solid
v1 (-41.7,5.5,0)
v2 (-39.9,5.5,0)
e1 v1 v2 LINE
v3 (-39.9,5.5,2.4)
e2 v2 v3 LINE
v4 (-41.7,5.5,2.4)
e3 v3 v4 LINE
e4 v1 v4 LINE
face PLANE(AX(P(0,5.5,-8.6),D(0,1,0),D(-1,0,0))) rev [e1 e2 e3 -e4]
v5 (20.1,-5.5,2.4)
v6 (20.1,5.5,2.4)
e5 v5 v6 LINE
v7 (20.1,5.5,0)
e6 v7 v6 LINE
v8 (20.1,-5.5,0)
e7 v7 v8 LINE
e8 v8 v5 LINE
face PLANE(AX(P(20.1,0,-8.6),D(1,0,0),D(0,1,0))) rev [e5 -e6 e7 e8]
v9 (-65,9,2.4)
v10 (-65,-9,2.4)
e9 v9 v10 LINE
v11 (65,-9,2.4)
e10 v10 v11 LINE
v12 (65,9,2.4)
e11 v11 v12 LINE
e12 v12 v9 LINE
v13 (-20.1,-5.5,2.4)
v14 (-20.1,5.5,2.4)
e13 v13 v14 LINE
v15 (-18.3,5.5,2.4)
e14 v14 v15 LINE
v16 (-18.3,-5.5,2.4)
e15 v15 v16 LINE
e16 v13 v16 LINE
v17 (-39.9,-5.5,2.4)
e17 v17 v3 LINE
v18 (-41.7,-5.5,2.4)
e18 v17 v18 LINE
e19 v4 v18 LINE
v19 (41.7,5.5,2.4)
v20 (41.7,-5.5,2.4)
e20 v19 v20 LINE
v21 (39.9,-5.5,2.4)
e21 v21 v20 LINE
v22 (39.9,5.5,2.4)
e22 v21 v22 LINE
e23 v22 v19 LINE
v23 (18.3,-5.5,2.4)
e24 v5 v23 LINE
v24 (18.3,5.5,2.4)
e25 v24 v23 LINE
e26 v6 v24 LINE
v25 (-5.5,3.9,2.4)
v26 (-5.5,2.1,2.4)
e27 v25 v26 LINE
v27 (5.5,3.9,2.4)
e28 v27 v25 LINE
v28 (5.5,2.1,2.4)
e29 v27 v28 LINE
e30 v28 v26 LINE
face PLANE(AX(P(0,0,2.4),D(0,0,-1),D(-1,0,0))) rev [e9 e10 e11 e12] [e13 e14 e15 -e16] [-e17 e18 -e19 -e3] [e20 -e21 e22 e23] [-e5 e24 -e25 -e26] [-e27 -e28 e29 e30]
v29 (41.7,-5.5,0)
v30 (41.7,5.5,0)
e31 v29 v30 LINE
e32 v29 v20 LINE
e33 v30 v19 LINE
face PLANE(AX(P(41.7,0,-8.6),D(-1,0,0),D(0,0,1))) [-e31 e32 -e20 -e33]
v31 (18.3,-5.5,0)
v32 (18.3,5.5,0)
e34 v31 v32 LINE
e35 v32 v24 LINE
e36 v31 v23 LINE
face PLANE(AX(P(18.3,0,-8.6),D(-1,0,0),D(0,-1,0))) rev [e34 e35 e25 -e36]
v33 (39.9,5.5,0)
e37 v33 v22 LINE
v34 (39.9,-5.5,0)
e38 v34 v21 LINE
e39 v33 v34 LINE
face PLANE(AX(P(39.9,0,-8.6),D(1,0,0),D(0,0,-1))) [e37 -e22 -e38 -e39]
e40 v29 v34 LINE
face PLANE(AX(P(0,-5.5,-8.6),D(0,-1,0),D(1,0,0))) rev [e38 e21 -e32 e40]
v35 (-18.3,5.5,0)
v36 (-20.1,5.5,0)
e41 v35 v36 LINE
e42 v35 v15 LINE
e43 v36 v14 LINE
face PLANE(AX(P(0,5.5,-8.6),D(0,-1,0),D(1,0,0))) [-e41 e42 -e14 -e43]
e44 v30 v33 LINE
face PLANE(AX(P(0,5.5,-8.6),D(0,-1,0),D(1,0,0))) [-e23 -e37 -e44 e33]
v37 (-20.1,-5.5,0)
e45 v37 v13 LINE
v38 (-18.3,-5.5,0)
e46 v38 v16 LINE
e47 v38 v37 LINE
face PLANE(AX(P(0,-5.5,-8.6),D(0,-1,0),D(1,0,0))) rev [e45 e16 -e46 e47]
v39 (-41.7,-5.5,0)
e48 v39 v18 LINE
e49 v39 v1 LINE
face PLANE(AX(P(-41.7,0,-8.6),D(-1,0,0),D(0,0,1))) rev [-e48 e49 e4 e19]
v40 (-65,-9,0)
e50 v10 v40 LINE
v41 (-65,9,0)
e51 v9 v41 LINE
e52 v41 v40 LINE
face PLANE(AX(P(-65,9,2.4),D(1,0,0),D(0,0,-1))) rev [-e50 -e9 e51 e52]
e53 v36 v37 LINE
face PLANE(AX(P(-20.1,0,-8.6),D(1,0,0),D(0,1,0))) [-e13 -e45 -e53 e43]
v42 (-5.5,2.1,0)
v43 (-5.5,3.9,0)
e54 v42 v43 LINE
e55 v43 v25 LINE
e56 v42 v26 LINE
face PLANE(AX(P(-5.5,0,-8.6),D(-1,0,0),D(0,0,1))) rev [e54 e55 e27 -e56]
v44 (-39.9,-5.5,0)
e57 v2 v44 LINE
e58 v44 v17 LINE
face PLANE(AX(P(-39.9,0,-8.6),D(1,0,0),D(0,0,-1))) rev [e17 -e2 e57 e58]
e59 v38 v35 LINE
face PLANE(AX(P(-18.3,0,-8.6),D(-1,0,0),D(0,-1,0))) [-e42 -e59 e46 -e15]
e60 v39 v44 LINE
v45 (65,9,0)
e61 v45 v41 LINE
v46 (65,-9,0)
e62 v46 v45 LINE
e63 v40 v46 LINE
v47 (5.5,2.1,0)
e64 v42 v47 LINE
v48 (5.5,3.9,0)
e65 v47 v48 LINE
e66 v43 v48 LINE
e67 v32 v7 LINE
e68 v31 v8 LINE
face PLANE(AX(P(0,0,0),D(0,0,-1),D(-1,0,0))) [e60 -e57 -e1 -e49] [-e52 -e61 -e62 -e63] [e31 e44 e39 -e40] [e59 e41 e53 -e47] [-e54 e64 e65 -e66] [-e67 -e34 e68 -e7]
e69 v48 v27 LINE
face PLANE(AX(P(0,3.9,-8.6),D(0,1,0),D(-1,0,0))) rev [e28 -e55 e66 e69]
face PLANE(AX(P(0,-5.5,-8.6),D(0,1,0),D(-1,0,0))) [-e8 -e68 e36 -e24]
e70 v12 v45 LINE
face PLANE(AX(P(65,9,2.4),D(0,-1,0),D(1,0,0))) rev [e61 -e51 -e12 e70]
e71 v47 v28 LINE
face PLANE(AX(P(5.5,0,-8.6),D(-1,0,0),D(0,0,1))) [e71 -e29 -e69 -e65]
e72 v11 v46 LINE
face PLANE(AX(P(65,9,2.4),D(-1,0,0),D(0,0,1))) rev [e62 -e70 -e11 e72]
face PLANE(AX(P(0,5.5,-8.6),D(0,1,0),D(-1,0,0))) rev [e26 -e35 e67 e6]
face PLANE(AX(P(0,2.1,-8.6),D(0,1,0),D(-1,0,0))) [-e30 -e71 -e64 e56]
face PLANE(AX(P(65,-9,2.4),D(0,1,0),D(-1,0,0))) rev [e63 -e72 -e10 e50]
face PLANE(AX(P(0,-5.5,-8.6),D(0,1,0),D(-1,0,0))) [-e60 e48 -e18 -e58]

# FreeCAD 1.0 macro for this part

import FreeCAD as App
import Part
import Sketcher

V = App.Vector


def add_polygon(sketch, points):
    """Adds a closed chain of lines whose ends are joined by coincident constraints."""
    first, n = sketch.GeometryCount, len(points)
    for a, b in zip(points, points[1:] + points[:1]):
        sketch.addGeometry(Part.LineSegment(App.Vector(*a, 0), App.Vector(*b, 0)), False)
    for i in range(n):
        sketch.addConstraint(Sketcher.Constraint("Coincident", first + i, 2, first + (i + 1) % n, 1))

doc = App.newDocument("Part")
body = doc.addObject("PartDesign::Body", "Body")

# Sketch on XY plane
sketch1 = doc.addObject("Sketcher::SketchObject", "Sketch")
body.addObject(sketch1)
sketch1.AttachmentSupport = (doc.XY_Plane, [""])
sketch1.MapMode = "FlatFace"
add_polygon(sketch1, [(-65, 9), (-65, -9), (65, -9), (65, 9)])  # lines 0-3
sketch1.addConstraint([
    Sketcher.Constraint("Vertical", 0),
    Sketcher.Constraint("Horizontal", 1),
    Sketcher.Constraint("Vertical", 2),
    Sketcher.Constraint("Horizontal", 3),
    Sketcher.Constraint("Symmetric", 0, 2, 2, 2, -1, 1),
    Sketcher.Constraint("DistanceX", 1, 1, 1, 2, 130.0),
    Sketcher.Constraint("DistanceY", 0, 2, 0, 1, 18.0),
])
pad1 = doc.addObject("PartDesign::Pad", "Pad")
body.addObject(pad1)
pad1.Profile = sketch1
pad1.Length = 2.4

# Sketch on XY plane
sketch2 = doc.addObject("Sketcher::SketchObject", "Sketch001")
body.addObject(sketch2)
sketch2.AttachmentSupport = (doc.XY_Plane, [""])
sketch2.MapMode = "FlatFace"
sketch2.AttachmentOffset = App.Placement(V(0, 0, 2.4), App.Rotation())
add_polygon(sketch2, [(-41.7, 5.5), (-41.7, -5.5), (-39.9, -5.5), (-39.9, 5.5)])  # lines 0-3
add_polygon(sketch2, [(-20.1, 5.5), (-20.1, -5.5), (-18.3, -5.5), (-18.3, 5.5)])  # lines 4-7
add_polygon(sketch2, [(18.3, 5.5), (18.3, -5.5), (20.1, -5.5), (20.1, 5.5)])  # lines 8-11
add_polygon(sketch2, [(39.9, 5.5), (39.9, -5.5), (41.7, -5.5), (41.7, 5.5)])  # lines 12-15
add_polygon(sketch2, [(-5.5, 3.9), (-5.5, 2.1), (5.5, 2.1), (5.5, 3.9)])  # lines 16-19
sketch2.addConstraint([
    Sketcher.Constraint("Vertical", 0),
    Sketcher.Constraint("Horizontal", 1),
    Sketcher.Constraint("Vertical", 2),
    Sketcher.Constraint("Horizontal", 3),
    Sketcher.Constraint("Vertical", 4),
    Sketcher.Constraint("Horizontal", 5),
    Sketcher.Constraint("Vertical", 6),
    Sketcher.Constraint("Horizontal", 7),
    Sketcher.Constraint("Vertical", 8),
    Sketcher.Constraint("Horizontal", 9),
    Sketcher.Constraint("Vertical", 10),
    Sketcher.Constraint("Horizontal", 11),
    Sketcher.Constraint("Vertical", 12),
    Sketcher.Constraint("Horizontal", 13),
    Sketcher.Constraint("Vertical", 14),
    Sketcher.Constraint("Horizontal", 15),
    Sketcher.Constraint("Vertical", 16),
    Sketcher.Constraint("Horizontal", 17),
    Sketcher.Constraint("Vertical", 18),
    Sketcher.Constraint("Horizontal", 19),
    Sketcher.Constraint("Symmetric", 6, 2, 8, 2, -1, 1),
    Sketcher.Constraint("Symmetric", 4, 2, 10, 2, -1, 1),
    Sketcher.Constraint("Symmetric", 2, 2, 12, 2, -1, 1),
    Sketcher.Constraint("Symmetric", 0, 2, 14, 2, -1, 1),
    Sketcher.Constraint("Horizontal", 1, 2, 4, 2),
    Sketcher.Constraint("Horizontal", 3, 2, 6, 2),
    Sketcher.Constraint("Horizontal", 5, 2, 8, 2),
    Sketcher.Constraint("Equal", 3, 5),
    Sketcher.Constraint("Equal", 19, 0),
    Sketcher.Constraint("Equal", 15, 16),
    Sketcher.Constraint("DistanceX", 17, 1, 17, 2, 11.0),
    Sketcher.Constraint("DistanceX", 1, 1, 1, 2, 1.8),
    Sketcher.Constraint("DistanceX", 0, 2, -1, 1, 41.7),
    Sketcher.Constraint("DistanceX", 4, 2, -1, 1, 20.1),
    Sketcher.Constraint("DistanceX", 16, 2, -1, 1, 5.5),
    Sketcher.Constraint("DistanceY", -1, 1, 16, 2, 2.1),
])
pocket1 = doc.addObject("PartDesign::Pocket", "Pocket")
body.addObject(pocket1)
pocket1.Profile = sketch2
pocket1.Length = 11

doc.recompute()
